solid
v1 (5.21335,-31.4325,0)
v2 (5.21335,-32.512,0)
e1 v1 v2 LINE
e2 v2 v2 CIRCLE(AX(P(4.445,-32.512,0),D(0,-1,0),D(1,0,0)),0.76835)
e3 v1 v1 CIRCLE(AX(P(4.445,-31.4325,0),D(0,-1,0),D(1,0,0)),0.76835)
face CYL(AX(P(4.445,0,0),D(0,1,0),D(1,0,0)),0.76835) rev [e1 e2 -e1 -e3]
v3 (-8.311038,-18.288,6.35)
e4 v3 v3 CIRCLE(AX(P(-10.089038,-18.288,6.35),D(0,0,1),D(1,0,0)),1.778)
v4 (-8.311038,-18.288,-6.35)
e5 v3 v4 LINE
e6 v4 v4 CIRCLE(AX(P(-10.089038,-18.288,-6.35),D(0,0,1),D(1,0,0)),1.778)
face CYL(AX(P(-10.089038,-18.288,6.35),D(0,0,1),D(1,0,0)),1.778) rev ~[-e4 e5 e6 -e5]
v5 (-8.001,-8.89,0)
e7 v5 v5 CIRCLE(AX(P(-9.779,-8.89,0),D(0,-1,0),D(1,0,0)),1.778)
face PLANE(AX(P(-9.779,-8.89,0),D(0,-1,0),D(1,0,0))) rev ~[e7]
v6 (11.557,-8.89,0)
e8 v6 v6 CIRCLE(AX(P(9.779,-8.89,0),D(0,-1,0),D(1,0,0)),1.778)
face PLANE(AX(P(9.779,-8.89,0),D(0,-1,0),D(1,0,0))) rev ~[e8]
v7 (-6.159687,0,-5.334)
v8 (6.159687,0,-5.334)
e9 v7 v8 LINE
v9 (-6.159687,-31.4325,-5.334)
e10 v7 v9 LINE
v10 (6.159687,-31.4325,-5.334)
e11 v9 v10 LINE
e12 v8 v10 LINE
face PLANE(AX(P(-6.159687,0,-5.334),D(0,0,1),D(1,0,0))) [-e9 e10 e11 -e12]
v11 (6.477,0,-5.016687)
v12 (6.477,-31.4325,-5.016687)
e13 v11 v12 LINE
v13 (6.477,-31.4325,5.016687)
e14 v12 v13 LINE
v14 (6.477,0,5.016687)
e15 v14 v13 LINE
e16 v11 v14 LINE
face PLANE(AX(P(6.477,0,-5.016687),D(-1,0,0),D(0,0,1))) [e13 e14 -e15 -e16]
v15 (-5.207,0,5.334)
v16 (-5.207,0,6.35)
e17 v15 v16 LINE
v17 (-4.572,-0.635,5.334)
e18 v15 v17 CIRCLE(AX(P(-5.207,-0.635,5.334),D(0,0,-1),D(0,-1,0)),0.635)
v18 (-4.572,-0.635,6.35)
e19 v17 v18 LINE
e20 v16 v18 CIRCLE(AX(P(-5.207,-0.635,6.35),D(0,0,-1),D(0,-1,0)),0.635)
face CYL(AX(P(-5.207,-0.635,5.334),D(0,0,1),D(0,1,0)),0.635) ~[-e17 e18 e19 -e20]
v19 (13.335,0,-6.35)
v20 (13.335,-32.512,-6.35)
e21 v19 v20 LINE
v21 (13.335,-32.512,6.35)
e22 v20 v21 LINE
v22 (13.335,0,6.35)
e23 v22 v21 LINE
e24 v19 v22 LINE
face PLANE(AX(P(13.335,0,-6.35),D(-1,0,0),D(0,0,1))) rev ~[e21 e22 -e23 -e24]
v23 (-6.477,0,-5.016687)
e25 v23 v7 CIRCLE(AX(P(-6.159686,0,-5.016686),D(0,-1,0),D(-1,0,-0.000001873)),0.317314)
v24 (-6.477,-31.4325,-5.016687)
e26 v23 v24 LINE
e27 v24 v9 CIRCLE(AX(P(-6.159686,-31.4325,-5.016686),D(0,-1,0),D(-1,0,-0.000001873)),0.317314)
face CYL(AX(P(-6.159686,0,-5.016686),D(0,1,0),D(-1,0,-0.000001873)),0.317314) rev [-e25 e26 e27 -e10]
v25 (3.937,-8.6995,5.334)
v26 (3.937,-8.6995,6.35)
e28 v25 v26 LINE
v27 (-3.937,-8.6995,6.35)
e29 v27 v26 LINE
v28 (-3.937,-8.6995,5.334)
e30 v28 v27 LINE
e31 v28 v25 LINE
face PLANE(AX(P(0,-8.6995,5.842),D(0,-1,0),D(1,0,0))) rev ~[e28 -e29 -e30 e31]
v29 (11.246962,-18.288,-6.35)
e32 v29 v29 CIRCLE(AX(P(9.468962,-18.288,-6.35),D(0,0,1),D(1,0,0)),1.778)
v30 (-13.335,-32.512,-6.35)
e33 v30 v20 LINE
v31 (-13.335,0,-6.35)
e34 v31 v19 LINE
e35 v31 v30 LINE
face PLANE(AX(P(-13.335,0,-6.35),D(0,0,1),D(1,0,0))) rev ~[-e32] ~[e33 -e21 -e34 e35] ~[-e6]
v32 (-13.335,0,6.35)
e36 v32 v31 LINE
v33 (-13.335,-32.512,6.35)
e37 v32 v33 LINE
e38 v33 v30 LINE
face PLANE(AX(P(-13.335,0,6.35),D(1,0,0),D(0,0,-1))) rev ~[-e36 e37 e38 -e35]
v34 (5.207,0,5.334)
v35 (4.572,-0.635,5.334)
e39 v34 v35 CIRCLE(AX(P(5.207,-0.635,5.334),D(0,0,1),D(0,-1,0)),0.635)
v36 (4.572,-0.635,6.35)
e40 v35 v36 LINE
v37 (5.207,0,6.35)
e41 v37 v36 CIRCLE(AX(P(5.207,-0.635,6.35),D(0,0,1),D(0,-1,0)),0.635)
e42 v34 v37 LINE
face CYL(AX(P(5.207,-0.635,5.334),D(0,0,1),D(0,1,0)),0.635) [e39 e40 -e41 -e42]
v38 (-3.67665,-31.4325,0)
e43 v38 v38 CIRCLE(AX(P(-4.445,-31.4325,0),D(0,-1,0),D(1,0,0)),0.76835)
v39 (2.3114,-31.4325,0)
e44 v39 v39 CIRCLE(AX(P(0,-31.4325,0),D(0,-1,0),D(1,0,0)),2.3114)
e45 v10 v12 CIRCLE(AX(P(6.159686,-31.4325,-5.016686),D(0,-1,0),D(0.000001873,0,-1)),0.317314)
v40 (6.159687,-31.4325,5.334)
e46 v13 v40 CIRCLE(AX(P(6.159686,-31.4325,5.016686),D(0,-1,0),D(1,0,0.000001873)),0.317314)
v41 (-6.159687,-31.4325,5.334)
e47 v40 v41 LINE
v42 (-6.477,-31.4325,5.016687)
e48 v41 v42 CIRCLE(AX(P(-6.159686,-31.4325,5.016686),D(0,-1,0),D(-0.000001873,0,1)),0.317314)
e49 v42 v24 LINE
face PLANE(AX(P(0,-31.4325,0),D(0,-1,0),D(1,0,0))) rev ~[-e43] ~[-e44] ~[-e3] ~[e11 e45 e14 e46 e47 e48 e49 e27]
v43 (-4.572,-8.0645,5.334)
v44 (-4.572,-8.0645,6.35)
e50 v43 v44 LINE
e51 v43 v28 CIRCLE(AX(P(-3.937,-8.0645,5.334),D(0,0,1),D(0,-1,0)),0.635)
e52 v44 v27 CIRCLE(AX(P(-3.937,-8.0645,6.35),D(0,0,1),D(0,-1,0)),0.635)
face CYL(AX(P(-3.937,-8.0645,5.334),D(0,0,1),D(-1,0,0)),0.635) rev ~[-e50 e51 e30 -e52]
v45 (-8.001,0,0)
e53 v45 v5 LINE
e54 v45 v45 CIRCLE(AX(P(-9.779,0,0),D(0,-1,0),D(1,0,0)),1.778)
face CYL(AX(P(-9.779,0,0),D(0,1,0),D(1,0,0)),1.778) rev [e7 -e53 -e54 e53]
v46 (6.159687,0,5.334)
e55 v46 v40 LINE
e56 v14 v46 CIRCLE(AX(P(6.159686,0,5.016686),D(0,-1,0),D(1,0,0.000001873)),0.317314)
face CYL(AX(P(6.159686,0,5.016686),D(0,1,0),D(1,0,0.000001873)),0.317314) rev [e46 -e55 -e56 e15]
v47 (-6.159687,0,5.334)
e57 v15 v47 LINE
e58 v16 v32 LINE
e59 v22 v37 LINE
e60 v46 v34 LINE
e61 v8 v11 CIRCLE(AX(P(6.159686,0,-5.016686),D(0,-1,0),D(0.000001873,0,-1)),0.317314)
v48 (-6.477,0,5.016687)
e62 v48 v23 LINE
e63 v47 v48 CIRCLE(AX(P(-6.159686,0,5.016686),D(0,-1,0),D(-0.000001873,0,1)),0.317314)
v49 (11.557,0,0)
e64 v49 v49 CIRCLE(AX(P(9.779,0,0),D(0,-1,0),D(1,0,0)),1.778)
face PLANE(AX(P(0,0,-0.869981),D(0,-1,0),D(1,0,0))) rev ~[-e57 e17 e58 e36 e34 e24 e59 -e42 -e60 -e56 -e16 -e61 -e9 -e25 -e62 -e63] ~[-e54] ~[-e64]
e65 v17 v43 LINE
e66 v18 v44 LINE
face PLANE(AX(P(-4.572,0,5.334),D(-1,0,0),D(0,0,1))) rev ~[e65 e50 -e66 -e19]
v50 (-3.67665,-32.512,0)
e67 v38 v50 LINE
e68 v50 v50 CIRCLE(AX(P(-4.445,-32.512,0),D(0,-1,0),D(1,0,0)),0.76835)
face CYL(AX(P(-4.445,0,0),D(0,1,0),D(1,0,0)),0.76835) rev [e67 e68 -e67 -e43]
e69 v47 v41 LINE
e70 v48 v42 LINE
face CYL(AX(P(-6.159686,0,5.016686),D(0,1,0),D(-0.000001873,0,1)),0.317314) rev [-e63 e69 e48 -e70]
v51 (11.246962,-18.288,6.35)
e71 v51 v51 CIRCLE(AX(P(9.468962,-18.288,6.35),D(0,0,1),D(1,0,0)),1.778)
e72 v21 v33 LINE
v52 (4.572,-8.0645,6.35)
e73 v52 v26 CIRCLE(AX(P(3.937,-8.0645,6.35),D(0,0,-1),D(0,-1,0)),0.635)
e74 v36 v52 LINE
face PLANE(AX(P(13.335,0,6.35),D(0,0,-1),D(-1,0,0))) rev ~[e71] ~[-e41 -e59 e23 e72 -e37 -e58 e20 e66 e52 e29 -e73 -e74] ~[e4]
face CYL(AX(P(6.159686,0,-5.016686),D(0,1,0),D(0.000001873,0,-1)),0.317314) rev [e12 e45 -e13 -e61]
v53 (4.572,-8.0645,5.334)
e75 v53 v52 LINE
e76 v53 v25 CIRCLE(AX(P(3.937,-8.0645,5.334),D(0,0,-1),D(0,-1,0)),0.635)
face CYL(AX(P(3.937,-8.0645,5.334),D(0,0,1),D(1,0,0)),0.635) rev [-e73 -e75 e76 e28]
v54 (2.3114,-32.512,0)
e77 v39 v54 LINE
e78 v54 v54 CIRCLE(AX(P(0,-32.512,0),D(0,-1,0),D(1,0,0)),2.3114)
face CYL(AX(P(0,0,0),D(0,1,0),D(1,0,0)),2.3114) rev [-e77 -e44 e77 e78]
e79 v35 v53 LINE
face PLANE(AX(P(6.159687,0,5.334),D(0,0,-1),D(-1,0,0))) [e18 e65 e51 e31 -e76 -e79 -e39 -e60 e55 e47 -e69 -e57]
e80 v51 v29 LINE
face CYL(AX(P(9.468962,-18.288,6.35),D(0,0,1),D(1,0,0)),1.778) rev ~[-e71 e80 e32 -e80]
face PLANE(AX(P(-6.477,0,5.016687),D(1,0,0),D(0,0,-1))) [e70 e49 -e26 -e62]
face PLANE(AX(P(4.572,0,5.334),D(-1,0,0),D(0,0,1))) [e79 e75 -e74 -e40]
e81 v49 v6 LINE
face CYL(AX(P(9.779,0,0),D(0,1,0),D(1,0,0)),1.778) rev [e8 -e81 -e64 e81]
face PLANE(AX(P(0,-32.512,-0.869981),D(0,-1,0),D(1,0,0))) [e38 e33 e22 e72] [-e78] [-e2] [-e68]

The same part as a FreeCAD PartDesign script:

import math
import FreeCAD as App
import Part
import Sketcher
Q = App.Units.Quantity


def edges_at(feature, points):
    """Names of the edges that pass closest to the given points."""
    edges = feature.Shape.Edges
    near = lambda p: min(range(len(edges)), key=lambda i: edges[i].distToShape(Part.Vertex(*p))[0])
    return sorted({f"Edge{near(p) + 1}" for p in points})

doc = App.newDocument("Part")
body = doc.addObject("PartDesign::Body", "Body")

# Sketch on XZ plane
sketch1 = body.newObject("Sketcher::SketchObject", "Sketch")
sketch1.AttachmentSupport = (doc.getObject("XZ_Plane"), [""])
sketch1.MapMode = "FlatFace"
sketch1.addGeometry([
    Part.LineSegment(App.Vector(-13.3, -6.3, 0), App.Vector(13.3, -6.3, 0)),  # 0
    Part.LineSegment(App.Vector(13.3, -6.3, 0), App.Vector(13.3, 6.3, 0)),  # 1
    Part.LineSegment(App.Vector(13.3, 6.3, 0), App.Vector(-13.3, 6.3, 0)),  # 2
    Part.LineSegment(App.Vector(-13.3, 6.3, 0), App.Vector(-13.3, -6.3, 0)),  # 3
    Part.Circle(App.Vector(-4.4, 0, 0), App.Vector(0, 0, 1), 0.8),  # 4
    Part.Circle(App.Vector(0, 0, 0), App.Vector(0, 0, 1), 2.3),  # 5
    Part.Circle(App.Vector(4.4, 0, 0), App.Vector(0, 0, 1), 0.8),  # 6
], False)
sketch1.addConstraint([
    Sketcher.Constraint("Coincident", 0, 2, 1, 1),
    Sketcher.Constraint("Coincident", 1, 2, 2, 1),
    Sketcher.Constraint("Coincident", 2, 2, 3, 1),
    Sketcher.Constraint("Coincident", 3, 2, 0, 1),
    Sketcher.Constraint("Horizontal", 0),
    Sketcher.Constraint("Vertical", 1),
    Sketcher.Constraint("Horizontal", 2),
    Sketcher.Constraint("Vertical", 3),
    Sketcher.Constraint("Coincident", 5, 3, -1, 1),
    Sketcher.Constraint("Equal", 4, 6),
    Sketcher.Constraint("Symmetric", 4, 3, 6, 3, -1, 1),
    Sketcher.Constraint("Symmetric", 0, 2, 2, 2, -1, 1),
    Sketcher.Constraint("PointOnObject", 4, 3, -1),
    Sketcher.Constraint("Diameter", 5, Q("0.182 in")),
    Sketcher.Constraint("DistanceY", 1, 1, 1, 2, Q("0.5 in")),
    Sketcher.Constraint("Diameter", 4, Q("0.0605 in")),
    Sketcher.Constraint("DistanceX", 0, 1, 0, 2, Q("1.05 in")),
    Sketcher.Constraint("DistanceX", 4, 3, 0, 2, Q("0.7 in")),
])
pad1 = body.newObject("PartDesign::Pad", "Pad")
pad1.Profile = sketch1
pad1.Length = Q("1.28 in")

# Sketch on XZ plane
sketch2 = body.newObject("Sketcher::SketchObject", "Sketch001")
sketch2.AttachmentSupport = (doc.getObject("XZ_Plane"), [""])
sketch2.MapMode = "FlatFace"
sketch2.addGeometry([
    Part.LineSegment(App.Vector(6.16, 5.33, 0), App.Vector(-6.16, 5.33, 0)),  # 0
    Part.ArcOfCircle(Part.Circle(App.Vector(-6.16, 5.02, 0), App.Vector(0, 0, 1), 0.32), math.radians(90), math.radians(180)),  # 1
    Part.LineSegment(App.Vector(-6.48, 5.02, 0), App.Vector(-6.48, -5.02, 0)),  # 2
    Part.ArcOfCircle(Part.Circle(App.Vector(-6.16, -5.02, 0), App.Vector(0, 0, 1), 0.32), math.radians(-180), math.radians(-90)),  # 3
    Part.LineSegment(App.Vector(-6.16, -5.33, 0), App.Vector(6.16, -5.33, 0)),  # 4
    Part.ArcOfCircle(Part.Circle(App.Vector(6.16, -5.02, 0), App.Vector(0, 0, 1), 0.32), math.radians(-90), math.radians(0)),  # 5
    Part.LineSegment(App.Vector(6.48, -5.02, 0), App.Vector(6.48, 5.02, 0)),  # 6
    Part.ArcOfCircle(Part.Circle(App.Vector(6.16, 5.02, 0), App.Vector(0, 0, 1), 0.32), math.radians(0), math.radians(90)),  # 7
    Part.Circle(App.Vector(-4.45, 0, 0), App.Vector(0, 0, 1), 0.77),  # 8
    Part.Circle(App.Vector(0, 0, 0), App.Vector(0, 0, 1), 2.31),  # 9
    Part.Circle(App.Vector(4.45, 0, 0), App.Vector(0, 0, 1), 0.77),  # 10
], False)
sketch2.addConstraint([
    Sketcher.Constraint("Tangent", 0, 2, 1, 1),
    Sketcher.Constraint("Tangent", 1, 2, 2, 1),
    Sketcher.Constraint("Tangent", 2, 2, 3, 1),
    Sketcher.Constraint("Tangent", 3, 2, 4, 1),
    Sketcher.Constraint("Tangent", 4, 2, 5, 1),
    Sketcher.Constraint("Tangent", 5, 2, 6, 1),
    Sketcher.Constraint("Tangent", 6, 2, 7, 1),
    Sketcher.Constraint("Tangent", 7, 2, 0, 1),
    Sketcher.Constraint("Horizontal", 0),
    Sketcher.Constraint("Vertical", 2),
    Sketcher.Constraint("Horizontal", 4),
    Sketcher.Constraint("Vertical", 6),
    Sketcher.Constraint("Coincident", 9, 3, -1, 1),
    Sketcher.Constraint("Equal", 1, 3),
    Sketcher.Constraint("Equal", 3, 5),
    Sketcher.Constraint("Equal", 5, 7),
    Sketcher.Constraint("Equal", 8, 10),
    Sketcher.Constraint("Symmetric", 1, 3, 5, 3, -1, 1),
    Sketcher.Constraint("Symmetric", 8, 3, 10, 3, -1, 1),
    Sketcher.Constraint("PointOnObject", 8, 3, -1),
    Sketcher.Constraint("Diameter", 9, Q("0.182 in")),
    Sketcher.Constraint("Diameter", 8, Q("0.0605 in")),
    Sketcher.Constraint("DistanceY", -1, 1, 0, 2, Q("0.21 in")),
    Sketcher.Constraint("DistanceX", 8, 3, 10, 3, Q("0.35 in")),
    Sketcher.Constraint("DistanceX", 1, 2, 8, 3, Q("0.08 in")),
    Sketcher.Constraint("Radius", 1, 0.317314),
])
pocket1 = body.newObject("PartDesign::Pocket", "Pocket")
pocket1.Profile = sketch2
pocket1.Length = Q("1.2375 in")
pocket1.Reversed = True

# Sketch on XZ plane
sketch3 = body.newObject("Sketcher::SketchObject", "Sketch002")
sketch3.AttachmentSupport = (doc.getObject("XZ_Plane"), [""])
sketch3.MapMode = "FlatFace"
sketch3.addGeometry([
    Part.LineSegment(App.Vector(-4.6, 6.3, 0), App.Vector(-4.6, 5.3, 0)),
    Part.LineSegment(App.Vector(-4.6, 5.3, 0), App.Vector(4.6, 5.3, 0)),
    Part.LineSegment(App.Vector(4.6, 5.3, 0), App.Vector(4.6, 6.3, 0)),
    Part.LineSegment(App.Vector(4.6, 6.3, 0), App.Vector(-4.6, 6.3, 0)),
], False)
sketch3.addConstraint([
    Sketcher.Constraint("Coincident", 0, 2, 1, 1),
    Sketcher.Constraint("Coincident", 1, 2, 2, 1),
    Sketcher.Constraint("Coincident", 2, 2, 3, 1),
    Sketcher.Constraint("Coincident", 3, 2, 0, 1),
    Sketcher.Constraint("Vertical", 0),
    Sketcher.Constraint("Horizontal", 1),
    Sketcher.Constraint("Vertical", 2),
    Sketcher.Constraint("Horizontal", 3),
    Sketcher.Constraint("DistanceX", 1, 1, 1, 2, Q("0.36 in")),
    Sketcher.Constraint("DistanceY", 0, 2, 0, 1, Q("0.04 in")),
    Sketcher.Constraint("DistanceX", 0, 2, -1, 1, Q("0.18 in")),
    Sketcher.Constraint("DistanceY", -1, 1, 0, 2, Q("0.21 in")),
])
pocket2 = body.newObject("PartDesign::Pocket", "Pocket001")
pocket2.Profile = sketch3
pocket2.Length = Q("0.3425 in")
pocket2.Reversed = True

# Sketch on XZ plane
sketch4 = body.newObject("Sketcher::SketchObject", "Sketch003")
sketch4.AttachmentSupport = (doc.getObject("XZ_Plane"), [""])
sketch4.MapMode = "FlatFace"
sketch4.addGeometry([
    Part.Circle(App.Vector(9.8, 0, 0), App.Vector(0, 0, 1), 1.8),
    Part.Circle(App.Vector(-9.8, 0, 0), App.Vector(0, 0, 1), 1.8),
], False)
sketch4.addConstraint([
    Sketcher.Constraint("Equal", 0, 1),
    Sketcher.Constraint("Symmetric", 0, 3, 1, 3, -1, 1),
    Sketcher.Constraint("PointOnObject", 0, 3, -1),
    Sketcher.Constraint("Diameter", 0, Q("0.14 in")),
    Sketcher.Constraint("DistanceX", 1, 3, 0, 3, Q("0.77 in")),
])
pocket3 = body.newObject("PartDesign::Pocket", "Pocket002")
pocket3.Profile = sketch4
pocket3.Length = Q("0.35 in")
pocket3.Reversed = True

# Sketch on XY plane
sketch5 = body.newObject("Sketcher::SketchObject", "Sketch004")
sketch5.AttachmentSupport = (doc.getObject("XY_Plane"), [""])
sketch5.MapMode = "FlatFace"
sketch5.AttachmentOffset = App.Placement(App.Vector(0, 0, 0.25 * 25.4), App.Rotation())
sketch5.addGeometry([
    Part.Circle(App.Vector(-10.1, -18.3, 0), App.Vector(0, 0, 1), 1.8),
    Part.Circle(App.Vector(9.5, -18.3, 0), App.Vector(0, 0, 1), 1.8),
], False)
sketch5.addConstraint([
    Sketcher.Constraint("Equal", 0, 1),
    Sketcher.Constraint("Horizontal", 0, 3, 1, 3),
    Sketcher.Constraint("Diameter", 0, Q("0.14 in")),
    Sketcher.Constraint("DistanceY", 0, 3, -1, 1, Q("0.72 in")),
    Sketcher.Constraint("DistanceX", 0, 3, 1, 3, Q("0.77 in")),
    Sketcher.Constraint("DistanceX", 0, 3, -1, 1, 10.089038),
])
pocket4 = body.newObject("PartDesign::Pocket", "Pocket003")
pocket4.Profile = sketch5
pocket4.Type = "ThroughAll"
doc.recompute()

fillet = body.newObject("PartDesign::Fillet", "Fillet")
fillet.Base = (pocket4, edges_at(pocket4, [
    (-4.572, -8.7, 5.842),
    (4.572, -8.7, 5.842),
    (4.572, 0, 5.842),
    (-4.572, 0, 5.842),
]))
fillet.Radius = Q("0.025 in")

doc.recompute()
